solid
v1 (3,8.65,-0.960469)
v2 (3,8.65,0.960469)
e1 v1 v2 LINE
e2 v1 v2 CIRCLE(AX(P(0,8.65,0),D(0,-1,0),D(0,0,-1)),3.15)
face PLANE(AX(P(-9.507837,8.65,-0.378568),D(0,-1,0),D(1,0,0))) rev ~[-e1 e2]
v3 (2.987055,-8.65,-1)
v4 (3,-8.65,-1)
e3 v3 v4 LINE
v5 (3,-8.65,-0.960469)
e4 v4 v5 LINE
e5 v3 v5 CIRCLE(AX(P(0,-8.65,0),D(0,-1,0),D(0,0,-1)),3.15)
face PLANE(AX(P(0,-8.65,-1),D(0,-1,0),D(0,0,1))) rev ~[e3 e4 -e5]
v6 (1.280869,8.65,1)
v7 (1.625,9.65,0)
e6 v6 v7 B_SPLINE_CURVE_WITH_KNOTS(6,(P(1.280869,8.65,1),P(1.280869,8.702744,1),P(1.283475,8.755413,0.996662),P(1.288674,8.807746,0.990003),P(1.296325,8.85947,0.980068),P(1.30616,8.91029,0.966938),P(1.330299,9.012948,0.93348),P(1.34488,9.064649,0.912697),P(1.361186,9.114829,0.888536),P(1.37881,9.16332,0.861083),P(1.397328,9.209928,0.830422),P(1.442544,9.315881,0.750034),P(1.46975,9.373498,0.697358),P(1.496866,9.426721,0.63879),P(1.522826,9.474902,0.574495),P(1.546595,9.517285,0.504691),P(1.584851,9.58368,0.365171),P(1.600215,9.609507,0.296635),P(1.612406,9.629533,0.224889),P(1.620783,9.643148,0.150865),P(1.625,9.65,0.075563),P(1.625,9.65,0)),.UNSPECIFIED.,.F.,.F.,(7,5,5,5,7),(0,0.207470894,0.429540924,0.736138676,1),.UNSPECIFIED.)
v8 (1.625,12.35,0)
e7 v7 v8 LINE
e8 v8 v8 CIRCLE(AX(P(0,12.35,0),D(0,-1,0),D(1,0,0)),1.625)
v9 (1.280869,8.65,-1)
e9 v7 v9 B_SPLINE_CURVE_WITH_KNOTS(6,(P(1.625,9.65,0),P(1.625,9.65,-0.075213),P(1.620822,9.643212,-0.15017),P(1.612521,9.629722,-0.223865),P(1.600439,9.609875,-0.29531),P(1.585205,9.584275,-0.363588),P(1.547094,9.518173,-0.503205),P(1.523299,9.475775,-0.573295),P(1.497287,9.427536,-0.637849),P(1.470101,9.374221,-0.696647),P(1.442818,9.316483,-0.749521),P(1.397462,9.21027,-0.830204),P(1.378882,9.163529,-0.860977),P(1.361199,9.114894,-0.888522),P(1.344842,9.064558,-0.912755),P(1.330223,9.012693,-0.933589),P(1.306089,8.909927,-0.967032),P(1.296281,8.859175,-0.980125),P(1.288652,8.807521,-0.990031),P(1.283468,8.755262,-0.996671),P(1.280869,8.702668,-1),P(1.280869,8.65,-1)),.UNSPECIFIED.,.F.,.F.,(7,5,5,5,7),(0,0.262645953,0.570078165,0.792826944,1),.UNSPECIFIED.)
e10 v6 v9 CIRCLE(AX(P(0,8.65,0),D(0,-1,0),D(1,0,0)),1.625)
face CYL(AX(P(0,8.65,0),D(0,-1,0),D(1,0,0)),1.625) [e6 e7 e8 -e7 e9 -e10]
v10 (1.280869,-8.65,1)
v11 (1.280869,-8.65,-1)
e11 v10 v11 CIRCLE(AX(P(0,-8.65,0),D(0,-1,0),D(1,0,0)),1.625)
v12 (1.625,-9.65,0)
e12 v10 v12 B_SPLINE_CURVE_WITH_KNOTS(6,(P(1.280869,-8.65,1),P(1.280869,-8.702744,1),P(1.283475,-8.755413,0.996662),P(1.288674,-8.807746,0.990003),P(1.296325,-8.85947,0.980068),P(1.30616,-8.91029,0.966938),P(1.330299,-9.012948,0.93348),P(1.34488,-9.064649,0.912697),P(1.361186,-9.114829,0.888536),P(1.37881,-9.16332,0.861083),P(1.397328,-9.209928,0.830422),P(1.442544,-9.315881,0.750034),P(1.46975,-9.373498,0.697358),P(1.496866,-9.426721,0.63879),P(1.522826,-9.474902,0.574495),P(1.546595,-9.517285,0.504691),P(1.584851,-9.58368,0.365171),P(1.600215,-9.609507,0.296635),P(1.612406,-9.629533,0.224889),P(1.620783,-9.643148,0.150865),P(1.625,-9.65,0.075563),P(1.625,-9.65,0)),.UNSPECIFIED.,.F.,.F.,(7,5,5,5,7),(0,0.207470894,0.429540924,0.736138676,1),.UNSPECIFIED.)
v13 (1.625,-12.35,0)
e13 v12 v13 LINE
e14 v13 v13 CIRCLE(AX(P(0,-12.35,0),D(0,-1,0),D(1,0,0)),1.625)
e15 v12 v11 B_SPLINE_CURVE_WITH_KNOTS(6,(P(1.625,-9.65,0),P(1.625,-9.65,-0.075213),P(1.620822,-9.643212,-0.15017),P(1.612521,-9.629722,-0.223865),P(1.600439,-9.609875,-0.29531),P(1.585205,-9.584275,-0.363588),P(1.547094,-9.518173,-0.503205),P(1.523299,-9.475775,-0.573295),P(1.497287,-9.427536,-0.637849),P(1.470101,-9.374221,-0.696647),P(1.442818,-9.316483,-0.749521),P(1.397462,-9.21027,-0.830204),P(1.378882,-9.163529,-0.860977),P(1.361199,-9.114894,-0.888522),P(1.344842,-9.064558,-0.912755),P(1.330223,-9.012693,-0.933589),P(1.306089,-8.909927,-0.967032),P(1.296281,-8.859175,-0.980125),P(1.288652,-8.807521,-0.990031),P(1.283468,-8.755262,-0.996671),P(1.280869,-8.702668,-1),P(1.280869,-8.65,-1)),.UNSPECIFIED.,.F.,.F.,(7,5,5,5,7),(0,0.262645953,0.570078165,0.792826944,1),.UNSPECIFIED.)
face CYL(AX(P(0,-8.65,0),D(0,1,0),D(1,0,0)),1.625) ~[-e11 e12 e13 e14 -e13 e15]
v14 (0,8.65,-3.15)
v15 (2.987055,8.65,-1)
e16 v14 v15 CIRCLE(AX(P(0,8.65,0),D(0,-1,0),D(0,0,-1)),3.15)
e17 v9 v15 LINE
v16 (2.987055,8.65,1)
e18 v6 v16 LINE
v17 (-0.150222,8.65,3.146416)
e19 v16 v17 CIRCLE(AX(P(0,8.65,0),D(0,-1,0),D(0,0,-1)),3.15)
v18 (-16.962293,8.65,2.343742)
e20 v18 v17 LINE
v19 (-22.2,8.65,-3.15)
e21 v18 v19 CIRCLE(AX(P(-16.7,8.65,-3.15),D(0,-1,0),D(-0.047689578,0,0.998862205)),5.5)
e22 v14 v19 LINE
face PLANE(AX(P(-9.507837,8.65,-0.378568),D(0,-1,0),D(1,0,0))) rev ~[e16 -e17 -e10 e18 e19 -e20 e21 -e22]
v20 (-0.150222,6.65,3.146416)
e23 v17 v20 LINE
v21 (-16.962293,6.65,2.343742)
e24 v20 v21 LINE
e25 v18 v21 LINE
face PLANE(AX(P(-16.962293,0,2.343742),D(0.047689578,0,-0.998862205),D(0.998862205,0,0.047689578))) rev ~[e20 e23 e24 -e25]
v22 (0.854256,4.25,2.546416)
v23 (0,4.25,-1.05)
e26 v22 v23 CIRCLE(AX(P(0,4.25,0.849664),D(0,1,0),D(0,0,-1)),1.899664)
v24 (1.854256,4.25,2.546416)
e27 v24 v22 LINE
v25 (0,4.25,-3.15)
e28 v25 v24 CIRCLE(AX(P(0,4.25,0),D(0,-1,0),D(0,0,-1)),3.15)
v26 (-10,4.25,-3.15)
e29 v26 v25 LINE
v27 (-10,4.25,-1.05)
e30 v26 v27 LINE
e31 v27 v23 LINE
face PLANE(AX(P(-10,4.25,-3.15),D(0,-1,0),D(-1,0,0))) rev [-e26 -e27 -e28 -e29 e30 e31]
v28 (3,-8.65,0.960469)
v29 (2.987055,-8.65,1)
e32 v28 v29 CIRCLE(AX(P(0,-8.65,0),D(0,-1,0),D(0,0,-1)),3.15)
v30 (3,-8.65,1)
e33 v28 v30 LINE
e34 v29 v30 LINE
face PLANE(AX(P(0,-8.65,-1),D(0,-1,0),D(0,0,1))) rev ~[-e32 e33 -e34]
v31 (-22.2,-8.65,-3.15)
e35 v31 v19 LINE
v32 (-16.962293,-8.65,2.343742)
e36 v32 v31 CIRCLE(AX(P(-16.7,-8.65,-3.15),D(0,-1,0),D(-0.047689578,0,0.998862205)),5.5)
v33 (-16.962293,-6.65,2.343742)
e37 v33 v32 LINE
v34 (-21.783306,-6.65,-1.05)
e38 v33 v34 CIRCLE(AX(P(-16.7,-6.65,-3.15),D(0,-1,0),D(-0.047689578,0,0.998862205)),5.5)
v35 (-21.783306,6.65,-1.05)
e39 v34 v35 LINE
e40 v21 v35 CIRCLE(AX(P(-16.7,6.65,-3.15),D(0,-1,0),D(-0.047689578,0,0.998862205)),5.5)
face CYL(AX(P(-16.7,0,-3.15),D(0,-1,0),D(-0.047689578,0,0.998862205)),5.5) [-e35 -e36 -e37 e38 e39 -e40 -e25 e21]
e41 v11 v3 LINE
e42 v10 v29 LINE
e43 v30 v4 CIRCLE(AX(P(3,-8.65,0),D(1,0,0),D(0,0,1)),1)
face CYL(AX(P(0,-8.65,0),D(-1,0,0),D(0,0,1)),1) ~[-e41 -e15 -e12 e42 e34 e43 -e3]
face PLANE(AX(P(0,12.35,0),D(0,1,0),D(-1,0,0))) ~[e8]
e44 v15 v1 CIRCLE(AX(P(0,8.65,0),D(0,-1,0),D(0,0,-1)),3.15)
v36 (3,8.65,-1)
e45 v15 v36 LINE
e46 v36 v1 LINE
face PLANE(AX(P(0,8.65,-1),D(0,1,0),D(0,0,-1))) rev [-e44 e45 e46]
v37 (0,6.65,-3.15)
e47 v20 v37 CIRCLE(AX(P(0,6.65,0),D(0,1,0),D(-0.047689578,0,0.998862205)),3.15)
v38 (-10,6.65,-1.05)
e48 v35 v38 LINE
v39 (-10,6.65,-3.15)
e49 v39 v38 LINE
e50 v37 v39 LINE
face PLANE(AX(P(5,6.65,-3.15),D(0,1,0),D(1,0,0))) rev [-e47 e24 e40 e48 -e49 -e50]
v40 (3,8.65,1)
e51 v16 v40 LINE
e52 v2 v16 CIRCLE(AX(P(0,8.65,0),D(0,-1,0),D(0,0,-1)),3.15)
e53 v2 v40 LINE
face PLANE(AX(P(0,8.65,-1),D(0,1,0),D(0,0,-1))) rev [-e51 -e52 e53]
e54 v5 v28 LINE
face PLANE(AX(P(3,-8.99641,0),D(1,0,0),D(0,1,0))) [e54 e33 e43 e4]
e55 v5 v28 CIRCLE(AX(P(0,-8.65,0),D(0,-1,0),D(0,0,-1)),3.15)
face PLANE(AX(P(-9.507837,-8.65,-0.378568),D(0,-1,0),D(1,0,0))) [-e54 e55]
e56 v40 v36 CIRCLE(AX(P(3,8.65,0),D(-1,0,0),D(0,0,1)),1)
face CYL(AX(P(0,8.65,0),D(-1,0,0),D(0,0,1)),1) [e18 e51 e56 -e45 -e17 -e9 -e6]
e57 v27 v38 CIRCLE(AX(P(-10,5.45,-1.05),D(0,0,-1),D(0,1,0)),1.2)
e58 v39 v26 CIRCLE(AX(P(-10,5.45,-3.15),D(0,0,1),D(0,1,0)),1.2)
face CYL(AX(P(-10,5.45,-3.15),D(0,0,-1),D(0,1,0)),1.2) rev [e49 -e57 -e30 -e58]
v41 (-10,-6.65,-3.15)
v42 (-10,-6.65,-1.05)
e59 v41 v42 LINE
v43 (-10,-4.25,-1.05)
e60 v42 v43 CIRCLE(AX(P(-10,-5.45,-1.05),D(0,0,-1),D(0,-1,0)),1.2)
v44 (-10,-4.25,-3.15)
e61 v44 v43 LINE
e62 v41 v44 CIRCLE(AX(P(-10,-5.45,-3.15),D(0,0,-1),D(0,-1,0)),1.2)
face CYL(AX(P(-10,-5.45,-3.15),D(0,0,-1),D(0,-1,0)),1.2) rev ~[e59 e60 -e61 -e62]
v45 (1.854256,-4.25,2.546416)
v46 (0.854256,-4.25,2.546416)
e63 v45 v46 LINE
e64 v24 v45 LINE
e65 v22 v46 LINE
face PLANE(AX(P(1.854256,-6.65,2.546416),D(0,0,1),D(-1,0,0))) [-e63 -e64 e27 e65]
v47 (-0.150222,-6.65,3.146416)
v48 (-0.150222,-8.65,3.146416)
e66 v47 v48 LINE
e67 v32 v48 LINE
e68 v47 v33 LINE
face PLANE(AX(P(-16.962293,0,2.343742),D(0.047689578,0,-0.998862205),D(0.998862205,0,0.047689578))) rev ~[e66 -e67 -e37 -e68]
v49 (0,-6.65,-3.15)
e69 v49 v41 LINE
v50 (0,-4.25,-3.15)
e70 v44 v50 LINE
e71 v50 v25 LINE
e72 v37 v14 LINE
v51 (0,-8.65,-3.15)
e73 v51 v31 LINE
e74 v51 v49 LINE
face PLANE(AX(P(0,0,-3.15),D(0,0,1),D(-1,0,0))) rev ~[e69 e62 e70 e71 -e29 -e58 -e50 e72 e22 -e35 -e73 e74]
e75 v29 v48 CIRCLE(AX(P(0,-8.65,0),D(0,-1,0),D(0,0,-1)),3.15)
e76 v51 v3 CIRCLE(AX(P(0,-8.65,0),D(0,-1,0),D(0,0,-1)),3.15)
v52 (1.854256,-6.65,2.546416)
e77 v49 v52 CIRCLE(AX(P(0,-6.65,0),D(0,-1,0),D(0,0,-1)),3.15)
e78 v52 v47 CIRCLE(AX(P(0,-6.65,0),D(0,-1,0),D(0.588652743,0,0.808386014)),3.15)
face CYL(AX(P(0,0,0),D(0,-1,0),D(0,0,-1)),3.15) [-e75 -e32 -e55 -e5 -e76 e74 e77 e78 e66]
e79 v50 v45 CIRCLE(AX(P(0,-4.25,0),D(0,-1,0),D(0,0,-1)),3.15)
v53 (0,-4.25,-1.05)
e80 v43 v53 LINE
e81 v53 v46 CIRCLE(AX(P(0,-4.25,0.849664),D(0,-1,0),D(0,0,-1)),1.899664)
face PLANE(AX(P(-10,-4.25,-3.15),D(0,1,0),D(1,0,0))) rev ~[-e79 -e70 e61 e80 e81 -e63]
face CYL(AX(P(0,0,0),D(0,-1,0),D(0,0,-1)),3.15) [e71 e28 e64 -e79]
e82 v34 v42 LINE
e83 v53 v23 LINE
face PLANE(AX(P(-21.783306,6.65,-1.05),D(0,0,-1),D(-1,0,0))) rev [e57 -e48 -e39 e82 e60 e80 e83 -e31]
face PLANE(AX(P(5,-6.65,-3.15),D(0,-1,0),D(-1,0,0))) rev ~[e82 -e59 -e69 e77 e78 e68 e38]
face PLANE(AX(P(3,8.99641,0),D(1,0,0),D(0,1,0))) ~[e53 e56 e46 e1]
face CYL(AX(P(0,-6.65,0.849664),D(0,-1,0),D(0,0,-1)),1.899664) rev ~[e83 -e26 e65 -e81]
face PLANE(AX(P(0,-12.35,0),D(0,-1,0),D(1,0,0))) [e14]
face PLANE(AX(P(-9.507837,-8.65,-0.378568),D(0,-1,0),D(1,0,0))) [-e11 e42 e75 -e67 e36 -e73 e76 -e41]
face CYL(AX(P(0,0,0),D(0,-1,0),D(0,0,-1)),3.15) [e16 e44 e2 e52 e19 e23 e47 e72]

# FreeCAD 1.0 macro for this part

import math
import FreeCAD as App
import Part
import Sketcher

V = App.Vector
Q = App.Units.Quantity

doc = App.newDocument("Part")
body = doc.addObject("PartDesign::Body", "Body")

sketch1 = doc.addObject("Sketcher::SketchObject", "Sketch")
body.addObject(sketch1)
sketch1.AttachmentSupport = (doc.XZ_Plane, [""])
sketch1.MapMode = "FlatFace"
sketch1.addGeometry([
    Part.ArcOfCircle(Part.Circle(V(0, 0, 0), V(0, 0, 1), 3.15), math.radians(-90), math.radians(92.733448)),
    Part.LineSegment(V(-0.150222, 3.146416, 0), V(-16.962293, 2.343742, 0)),
    Part.ArcOfCircle(Part.Circle(V(-16.7, -3.15, 0), V(0, 0, 1), 5.5), math.radians(92.733448), math.radians(180)),
    Part.LineSegment(V(-22.2, -3.15, 0), V(0, -3.15, 0)),
], False)
sketch1.addConstraint([
    Sketcher.Constraint("Tangent", 0, 2, 1, 1),
    Sketcher.Constraint("Tangent", 1, 2, 2, 1),
    Sketcher.Constraint("Coincident", 2, 2, 3, 1),
    Sketcher.Constraint("Tangent", 3, 2, 0, 1),
    Sketcher.Constraint("Horizontal", 3),
    Sketcher.Constraint("Coincident", 0, 3, -1, 1),
    Sketcher.Constraint("Radius", 2, Q("5.5 mm")),
    Sketcher.Constraint("Radius", 0, Q("3.15 mm")),
    Sketcher.Constraint("DistanceX", 3, 1, 3, 2, Q("22.2 mm")),
    Sketcher.Constraint("DistanceY", 2, 3, -1, 1, Q("3.15 mm")),
])
pad1 = doc.addObject("PartDesign::Pad", "Pad")
body.addObject(pad1)
pad1.Profile = sketch1
pad1.Length = 17.3
pad1.Midplane = True

sketch2 = doc.addObject("Sketcher::SketchObject", "Sketch001")
body.addObject(sketch2)
sketch2.AttachmentSupport = (doc.XZ_Plane, [""])
sketch2.MapMode = "FlatFace"
sketch2.AttachmentOffset = App.Placement(V(0, 0, 8.65), App.Rotation())
sketch2.addGeometry(Part.Circle(V(0, 0, 0), V(0, 0, 1), 1.625), False)
sketch2.addConstraint([
    Sketcher.Constraint("Coincident", 0, 3, -1, 1),
    Sketcher.Constraint("Diameter", 0, Q("3.25 mm")),
])
pad2 = doc.addObject("PartDesign::Pad", "Pad001")
body.addObject(pad2)
pad2.Profile = sketch2
pad2.Length = 3.7

sketch3 = doc.addObject("Sketcher::SketchObject", "Sketch002")
body.addObject(sketch3)
sketch3.AttachmentSupport = (doc.YZ_Plane, [""])
sketch3.MapMode = "FlatFace"
sketch3.addGeometry([
    Part.ArcOfCircle(Part.Circle(V(-8.65, 0, 0), V(0, 0, 1), 1), math.radians(90), math.radians(270)),
    Part.LineSegment(V(-8.65, -1, 0), V(-8.65, 1, 0)),
], False)
sketch3.addConstraint([
    Sketcher.Constraint("Coincident", 0, 1, 1, 2),
    Sketcher.Constraint("Coincident", 1, 1, 0, 2),
    Sketcher.Constraint("Vertical", 1),
    Sketcher.Constraint("PointOnObject", 0, 3, -1),
    Sketcher.Constraint("Radius", 0, Q("1 mm")),
    Sketcher.Constraint("DistanceX", 0, 3, -1, 1, Q("8.65 mm")),
    Sketcher.Constraint("DistanceX", 0, 1, -1, 1, Q("8.65 mm")),
])
pad3 = doc.addObject("PartDesign::Pad", "Pad002")
body.addObject(pad3)
pad3.Profile = sketch3
pad3.Length = 3

sketch4 = doc.addObject("Sketcher::SketchObject", "Sketch003")
body.addObject(sketch4)
sketch4.AttachmentSupport = (doc.XZ_Plane, [""])
sketch4.MapMode = "FlatFace"
sketch4.AttachmentOffset = App.Placement(V(0, 0, 6.65), App.Rotation())
sketch4.addGeometry([
    Part.LineSegment(V(-21.783306, -1.05, 0), V(0, -1.05, 0)),
    Part.ArcOfCircle(Part.Circle(V(0, 0.849664, 0), V(0, 0, 1), 1.899664), math.radians(-90), math.radians(63.276325)),
    Part.LineSegment(V(0.854256, 2.546416, 0), V(1.854256, 2.546416, 0)),
    Part.ArcOfCircle(Part.Circle(V(0, 0, 0), V(0, 0, 1), 3.15), math.radians(53.938539), math.radians(92.733448)),
    Part.LineSegment(V(-0.150222, 3.146416, 0), V(-16.962293, 2.343742, 0)),
    Part.ArcOfCircle(Part.Circle(V(-16.7, -3.15, 0), V(0, 0, 1), 5.5), math.radians(92.733448), math.radians(157.553649)),
], False)
sketch4.addConstraint([
    Sketcher.Constraint("Tangent", 0, 2, 1, 1),
    Sketcher.Constraint("Coincident", 1, 2, 2, 1),
    Sketcher.Constraint("Coincident", 2, 2, 3, 1),
    Sketcher.Constraint("Tangent", 3, 2, 4, 1),
    Sketcher.Constraint("Tangent", 4, 2, 5, 1),
    Sketcher.Constraint("Coincident", 5, 2, 0, 1),
    Sketcher.Constraint("Horizontal", 0),
    Sketcher.Constraint("Horizontal", 2),
    Sketcher.Constraint("Coincident", 3, 3, -1, 1),
    Sketcher.Constraint("PointOnObject", 1, 3, -2),
    Sketcher.Constraint("Radius", 5, Q("5.5 mm")),
    Sketcher.Constraint("DistanceX", 2, 1, 2, 2, Q("1 mm")),
    Sketcher.Constraint("Radius", 3, Q("3.15 mm")),
    Sketcher.Constraint("DistanceX", 5, 3, -1, 1, Q("16.7 mm")),
    Sketcher.Constraint("DistanceY", 5, 3, 0, 2, Q("2.1 mm")),
    Sketcher.Constraint("DistanceY", 1, 2, 3, 2, Q("0.6 mm")),
    Sketcher.Constraint("DistanceY", 5, 3, -1, 1, Q("3.15 mm")),
])
pocket1 = doc.addObject("PartDesign::Pocket", "Pocket")
body.addObject(pocket1)
pocket1.Profile = sketch4
pocket1.Length = 8.3

sketch5 = doc.addObject("Sketcher::SketchObject", "Sketch004")
body.addObject(sketch5)
sketch5.AttachmentSupport = (doc.XY_Plane, [""])
sketch5.MapMode = "FlatFace"
sketch5.AttachmentOffset = App.Placement(V(0, 0, -3.15), App.Rotation())
sketch5.addGeometry([
    Part.ArcOfCircle(Part.Circle(V(-10, -5.45, 0), V(0, 0, 1), 1.2), math.radians(90), math.radians(270)),
    Part.LineSegment(V(-10, -4.25, 0), V(5, -4.25, 0)),
    Part.LineSegment(V(5, -4.25, 0), V(5, -6.65, 0)),
    Part.LineSegment(V(5, -6.65, 0), V(-10, -6.65, 0)),
], False)
sketch5.addConstraint([
    Sketcher.Constraint("Tangent", 0, 1, 1, 1),
    Sketcher.Constraint("Coincident", 1, 2, 2, 1),
    Sketcher.Constraint("Coincident", 2, 2, 3, 1),
    Sketcher.Constraint("Tangent", 3, 2, 0, 2),
    Sketcher.Constraint("Horizontal", 1),
    Sketcher.Constraint("Vertical", 2),
    Sketcher.Constraint("Horizontal", 3),
    Sketcher.Constraint("Radius", 0, Q("1.2 mm")),
    Sketcher.Constraint("DistanceX", 1, 1, 1, 2, Q("15 mm")),
    Sketcher.Constraint("DistanceX", 0, 3, -1, 1, Q("10 mm")),
    Sketcher.Constraint("DistanceY", 0, 3, -1, 1, Q("5.45 mm")),
])
pocket2 = doc.addObject("PartDesign::Pocket", "Pocket001")
body.addObject(pocket2)
pocket2.Profile = sketch5
pocket2.Type = "ThroughAll"
pocket2.Reversed = True
doc.recompute()

mirrored = doc.addObject("PartDesign::Mirrored", "Mirrored")
body.addObject(mirrored)
mirrored.Originals = [pocket2, pocket1, pad3, pad2]
mirrored.MirrorPlane = (doc.XZ_Plane, [""])
body.Tip = mirrored

doc.recompute()
